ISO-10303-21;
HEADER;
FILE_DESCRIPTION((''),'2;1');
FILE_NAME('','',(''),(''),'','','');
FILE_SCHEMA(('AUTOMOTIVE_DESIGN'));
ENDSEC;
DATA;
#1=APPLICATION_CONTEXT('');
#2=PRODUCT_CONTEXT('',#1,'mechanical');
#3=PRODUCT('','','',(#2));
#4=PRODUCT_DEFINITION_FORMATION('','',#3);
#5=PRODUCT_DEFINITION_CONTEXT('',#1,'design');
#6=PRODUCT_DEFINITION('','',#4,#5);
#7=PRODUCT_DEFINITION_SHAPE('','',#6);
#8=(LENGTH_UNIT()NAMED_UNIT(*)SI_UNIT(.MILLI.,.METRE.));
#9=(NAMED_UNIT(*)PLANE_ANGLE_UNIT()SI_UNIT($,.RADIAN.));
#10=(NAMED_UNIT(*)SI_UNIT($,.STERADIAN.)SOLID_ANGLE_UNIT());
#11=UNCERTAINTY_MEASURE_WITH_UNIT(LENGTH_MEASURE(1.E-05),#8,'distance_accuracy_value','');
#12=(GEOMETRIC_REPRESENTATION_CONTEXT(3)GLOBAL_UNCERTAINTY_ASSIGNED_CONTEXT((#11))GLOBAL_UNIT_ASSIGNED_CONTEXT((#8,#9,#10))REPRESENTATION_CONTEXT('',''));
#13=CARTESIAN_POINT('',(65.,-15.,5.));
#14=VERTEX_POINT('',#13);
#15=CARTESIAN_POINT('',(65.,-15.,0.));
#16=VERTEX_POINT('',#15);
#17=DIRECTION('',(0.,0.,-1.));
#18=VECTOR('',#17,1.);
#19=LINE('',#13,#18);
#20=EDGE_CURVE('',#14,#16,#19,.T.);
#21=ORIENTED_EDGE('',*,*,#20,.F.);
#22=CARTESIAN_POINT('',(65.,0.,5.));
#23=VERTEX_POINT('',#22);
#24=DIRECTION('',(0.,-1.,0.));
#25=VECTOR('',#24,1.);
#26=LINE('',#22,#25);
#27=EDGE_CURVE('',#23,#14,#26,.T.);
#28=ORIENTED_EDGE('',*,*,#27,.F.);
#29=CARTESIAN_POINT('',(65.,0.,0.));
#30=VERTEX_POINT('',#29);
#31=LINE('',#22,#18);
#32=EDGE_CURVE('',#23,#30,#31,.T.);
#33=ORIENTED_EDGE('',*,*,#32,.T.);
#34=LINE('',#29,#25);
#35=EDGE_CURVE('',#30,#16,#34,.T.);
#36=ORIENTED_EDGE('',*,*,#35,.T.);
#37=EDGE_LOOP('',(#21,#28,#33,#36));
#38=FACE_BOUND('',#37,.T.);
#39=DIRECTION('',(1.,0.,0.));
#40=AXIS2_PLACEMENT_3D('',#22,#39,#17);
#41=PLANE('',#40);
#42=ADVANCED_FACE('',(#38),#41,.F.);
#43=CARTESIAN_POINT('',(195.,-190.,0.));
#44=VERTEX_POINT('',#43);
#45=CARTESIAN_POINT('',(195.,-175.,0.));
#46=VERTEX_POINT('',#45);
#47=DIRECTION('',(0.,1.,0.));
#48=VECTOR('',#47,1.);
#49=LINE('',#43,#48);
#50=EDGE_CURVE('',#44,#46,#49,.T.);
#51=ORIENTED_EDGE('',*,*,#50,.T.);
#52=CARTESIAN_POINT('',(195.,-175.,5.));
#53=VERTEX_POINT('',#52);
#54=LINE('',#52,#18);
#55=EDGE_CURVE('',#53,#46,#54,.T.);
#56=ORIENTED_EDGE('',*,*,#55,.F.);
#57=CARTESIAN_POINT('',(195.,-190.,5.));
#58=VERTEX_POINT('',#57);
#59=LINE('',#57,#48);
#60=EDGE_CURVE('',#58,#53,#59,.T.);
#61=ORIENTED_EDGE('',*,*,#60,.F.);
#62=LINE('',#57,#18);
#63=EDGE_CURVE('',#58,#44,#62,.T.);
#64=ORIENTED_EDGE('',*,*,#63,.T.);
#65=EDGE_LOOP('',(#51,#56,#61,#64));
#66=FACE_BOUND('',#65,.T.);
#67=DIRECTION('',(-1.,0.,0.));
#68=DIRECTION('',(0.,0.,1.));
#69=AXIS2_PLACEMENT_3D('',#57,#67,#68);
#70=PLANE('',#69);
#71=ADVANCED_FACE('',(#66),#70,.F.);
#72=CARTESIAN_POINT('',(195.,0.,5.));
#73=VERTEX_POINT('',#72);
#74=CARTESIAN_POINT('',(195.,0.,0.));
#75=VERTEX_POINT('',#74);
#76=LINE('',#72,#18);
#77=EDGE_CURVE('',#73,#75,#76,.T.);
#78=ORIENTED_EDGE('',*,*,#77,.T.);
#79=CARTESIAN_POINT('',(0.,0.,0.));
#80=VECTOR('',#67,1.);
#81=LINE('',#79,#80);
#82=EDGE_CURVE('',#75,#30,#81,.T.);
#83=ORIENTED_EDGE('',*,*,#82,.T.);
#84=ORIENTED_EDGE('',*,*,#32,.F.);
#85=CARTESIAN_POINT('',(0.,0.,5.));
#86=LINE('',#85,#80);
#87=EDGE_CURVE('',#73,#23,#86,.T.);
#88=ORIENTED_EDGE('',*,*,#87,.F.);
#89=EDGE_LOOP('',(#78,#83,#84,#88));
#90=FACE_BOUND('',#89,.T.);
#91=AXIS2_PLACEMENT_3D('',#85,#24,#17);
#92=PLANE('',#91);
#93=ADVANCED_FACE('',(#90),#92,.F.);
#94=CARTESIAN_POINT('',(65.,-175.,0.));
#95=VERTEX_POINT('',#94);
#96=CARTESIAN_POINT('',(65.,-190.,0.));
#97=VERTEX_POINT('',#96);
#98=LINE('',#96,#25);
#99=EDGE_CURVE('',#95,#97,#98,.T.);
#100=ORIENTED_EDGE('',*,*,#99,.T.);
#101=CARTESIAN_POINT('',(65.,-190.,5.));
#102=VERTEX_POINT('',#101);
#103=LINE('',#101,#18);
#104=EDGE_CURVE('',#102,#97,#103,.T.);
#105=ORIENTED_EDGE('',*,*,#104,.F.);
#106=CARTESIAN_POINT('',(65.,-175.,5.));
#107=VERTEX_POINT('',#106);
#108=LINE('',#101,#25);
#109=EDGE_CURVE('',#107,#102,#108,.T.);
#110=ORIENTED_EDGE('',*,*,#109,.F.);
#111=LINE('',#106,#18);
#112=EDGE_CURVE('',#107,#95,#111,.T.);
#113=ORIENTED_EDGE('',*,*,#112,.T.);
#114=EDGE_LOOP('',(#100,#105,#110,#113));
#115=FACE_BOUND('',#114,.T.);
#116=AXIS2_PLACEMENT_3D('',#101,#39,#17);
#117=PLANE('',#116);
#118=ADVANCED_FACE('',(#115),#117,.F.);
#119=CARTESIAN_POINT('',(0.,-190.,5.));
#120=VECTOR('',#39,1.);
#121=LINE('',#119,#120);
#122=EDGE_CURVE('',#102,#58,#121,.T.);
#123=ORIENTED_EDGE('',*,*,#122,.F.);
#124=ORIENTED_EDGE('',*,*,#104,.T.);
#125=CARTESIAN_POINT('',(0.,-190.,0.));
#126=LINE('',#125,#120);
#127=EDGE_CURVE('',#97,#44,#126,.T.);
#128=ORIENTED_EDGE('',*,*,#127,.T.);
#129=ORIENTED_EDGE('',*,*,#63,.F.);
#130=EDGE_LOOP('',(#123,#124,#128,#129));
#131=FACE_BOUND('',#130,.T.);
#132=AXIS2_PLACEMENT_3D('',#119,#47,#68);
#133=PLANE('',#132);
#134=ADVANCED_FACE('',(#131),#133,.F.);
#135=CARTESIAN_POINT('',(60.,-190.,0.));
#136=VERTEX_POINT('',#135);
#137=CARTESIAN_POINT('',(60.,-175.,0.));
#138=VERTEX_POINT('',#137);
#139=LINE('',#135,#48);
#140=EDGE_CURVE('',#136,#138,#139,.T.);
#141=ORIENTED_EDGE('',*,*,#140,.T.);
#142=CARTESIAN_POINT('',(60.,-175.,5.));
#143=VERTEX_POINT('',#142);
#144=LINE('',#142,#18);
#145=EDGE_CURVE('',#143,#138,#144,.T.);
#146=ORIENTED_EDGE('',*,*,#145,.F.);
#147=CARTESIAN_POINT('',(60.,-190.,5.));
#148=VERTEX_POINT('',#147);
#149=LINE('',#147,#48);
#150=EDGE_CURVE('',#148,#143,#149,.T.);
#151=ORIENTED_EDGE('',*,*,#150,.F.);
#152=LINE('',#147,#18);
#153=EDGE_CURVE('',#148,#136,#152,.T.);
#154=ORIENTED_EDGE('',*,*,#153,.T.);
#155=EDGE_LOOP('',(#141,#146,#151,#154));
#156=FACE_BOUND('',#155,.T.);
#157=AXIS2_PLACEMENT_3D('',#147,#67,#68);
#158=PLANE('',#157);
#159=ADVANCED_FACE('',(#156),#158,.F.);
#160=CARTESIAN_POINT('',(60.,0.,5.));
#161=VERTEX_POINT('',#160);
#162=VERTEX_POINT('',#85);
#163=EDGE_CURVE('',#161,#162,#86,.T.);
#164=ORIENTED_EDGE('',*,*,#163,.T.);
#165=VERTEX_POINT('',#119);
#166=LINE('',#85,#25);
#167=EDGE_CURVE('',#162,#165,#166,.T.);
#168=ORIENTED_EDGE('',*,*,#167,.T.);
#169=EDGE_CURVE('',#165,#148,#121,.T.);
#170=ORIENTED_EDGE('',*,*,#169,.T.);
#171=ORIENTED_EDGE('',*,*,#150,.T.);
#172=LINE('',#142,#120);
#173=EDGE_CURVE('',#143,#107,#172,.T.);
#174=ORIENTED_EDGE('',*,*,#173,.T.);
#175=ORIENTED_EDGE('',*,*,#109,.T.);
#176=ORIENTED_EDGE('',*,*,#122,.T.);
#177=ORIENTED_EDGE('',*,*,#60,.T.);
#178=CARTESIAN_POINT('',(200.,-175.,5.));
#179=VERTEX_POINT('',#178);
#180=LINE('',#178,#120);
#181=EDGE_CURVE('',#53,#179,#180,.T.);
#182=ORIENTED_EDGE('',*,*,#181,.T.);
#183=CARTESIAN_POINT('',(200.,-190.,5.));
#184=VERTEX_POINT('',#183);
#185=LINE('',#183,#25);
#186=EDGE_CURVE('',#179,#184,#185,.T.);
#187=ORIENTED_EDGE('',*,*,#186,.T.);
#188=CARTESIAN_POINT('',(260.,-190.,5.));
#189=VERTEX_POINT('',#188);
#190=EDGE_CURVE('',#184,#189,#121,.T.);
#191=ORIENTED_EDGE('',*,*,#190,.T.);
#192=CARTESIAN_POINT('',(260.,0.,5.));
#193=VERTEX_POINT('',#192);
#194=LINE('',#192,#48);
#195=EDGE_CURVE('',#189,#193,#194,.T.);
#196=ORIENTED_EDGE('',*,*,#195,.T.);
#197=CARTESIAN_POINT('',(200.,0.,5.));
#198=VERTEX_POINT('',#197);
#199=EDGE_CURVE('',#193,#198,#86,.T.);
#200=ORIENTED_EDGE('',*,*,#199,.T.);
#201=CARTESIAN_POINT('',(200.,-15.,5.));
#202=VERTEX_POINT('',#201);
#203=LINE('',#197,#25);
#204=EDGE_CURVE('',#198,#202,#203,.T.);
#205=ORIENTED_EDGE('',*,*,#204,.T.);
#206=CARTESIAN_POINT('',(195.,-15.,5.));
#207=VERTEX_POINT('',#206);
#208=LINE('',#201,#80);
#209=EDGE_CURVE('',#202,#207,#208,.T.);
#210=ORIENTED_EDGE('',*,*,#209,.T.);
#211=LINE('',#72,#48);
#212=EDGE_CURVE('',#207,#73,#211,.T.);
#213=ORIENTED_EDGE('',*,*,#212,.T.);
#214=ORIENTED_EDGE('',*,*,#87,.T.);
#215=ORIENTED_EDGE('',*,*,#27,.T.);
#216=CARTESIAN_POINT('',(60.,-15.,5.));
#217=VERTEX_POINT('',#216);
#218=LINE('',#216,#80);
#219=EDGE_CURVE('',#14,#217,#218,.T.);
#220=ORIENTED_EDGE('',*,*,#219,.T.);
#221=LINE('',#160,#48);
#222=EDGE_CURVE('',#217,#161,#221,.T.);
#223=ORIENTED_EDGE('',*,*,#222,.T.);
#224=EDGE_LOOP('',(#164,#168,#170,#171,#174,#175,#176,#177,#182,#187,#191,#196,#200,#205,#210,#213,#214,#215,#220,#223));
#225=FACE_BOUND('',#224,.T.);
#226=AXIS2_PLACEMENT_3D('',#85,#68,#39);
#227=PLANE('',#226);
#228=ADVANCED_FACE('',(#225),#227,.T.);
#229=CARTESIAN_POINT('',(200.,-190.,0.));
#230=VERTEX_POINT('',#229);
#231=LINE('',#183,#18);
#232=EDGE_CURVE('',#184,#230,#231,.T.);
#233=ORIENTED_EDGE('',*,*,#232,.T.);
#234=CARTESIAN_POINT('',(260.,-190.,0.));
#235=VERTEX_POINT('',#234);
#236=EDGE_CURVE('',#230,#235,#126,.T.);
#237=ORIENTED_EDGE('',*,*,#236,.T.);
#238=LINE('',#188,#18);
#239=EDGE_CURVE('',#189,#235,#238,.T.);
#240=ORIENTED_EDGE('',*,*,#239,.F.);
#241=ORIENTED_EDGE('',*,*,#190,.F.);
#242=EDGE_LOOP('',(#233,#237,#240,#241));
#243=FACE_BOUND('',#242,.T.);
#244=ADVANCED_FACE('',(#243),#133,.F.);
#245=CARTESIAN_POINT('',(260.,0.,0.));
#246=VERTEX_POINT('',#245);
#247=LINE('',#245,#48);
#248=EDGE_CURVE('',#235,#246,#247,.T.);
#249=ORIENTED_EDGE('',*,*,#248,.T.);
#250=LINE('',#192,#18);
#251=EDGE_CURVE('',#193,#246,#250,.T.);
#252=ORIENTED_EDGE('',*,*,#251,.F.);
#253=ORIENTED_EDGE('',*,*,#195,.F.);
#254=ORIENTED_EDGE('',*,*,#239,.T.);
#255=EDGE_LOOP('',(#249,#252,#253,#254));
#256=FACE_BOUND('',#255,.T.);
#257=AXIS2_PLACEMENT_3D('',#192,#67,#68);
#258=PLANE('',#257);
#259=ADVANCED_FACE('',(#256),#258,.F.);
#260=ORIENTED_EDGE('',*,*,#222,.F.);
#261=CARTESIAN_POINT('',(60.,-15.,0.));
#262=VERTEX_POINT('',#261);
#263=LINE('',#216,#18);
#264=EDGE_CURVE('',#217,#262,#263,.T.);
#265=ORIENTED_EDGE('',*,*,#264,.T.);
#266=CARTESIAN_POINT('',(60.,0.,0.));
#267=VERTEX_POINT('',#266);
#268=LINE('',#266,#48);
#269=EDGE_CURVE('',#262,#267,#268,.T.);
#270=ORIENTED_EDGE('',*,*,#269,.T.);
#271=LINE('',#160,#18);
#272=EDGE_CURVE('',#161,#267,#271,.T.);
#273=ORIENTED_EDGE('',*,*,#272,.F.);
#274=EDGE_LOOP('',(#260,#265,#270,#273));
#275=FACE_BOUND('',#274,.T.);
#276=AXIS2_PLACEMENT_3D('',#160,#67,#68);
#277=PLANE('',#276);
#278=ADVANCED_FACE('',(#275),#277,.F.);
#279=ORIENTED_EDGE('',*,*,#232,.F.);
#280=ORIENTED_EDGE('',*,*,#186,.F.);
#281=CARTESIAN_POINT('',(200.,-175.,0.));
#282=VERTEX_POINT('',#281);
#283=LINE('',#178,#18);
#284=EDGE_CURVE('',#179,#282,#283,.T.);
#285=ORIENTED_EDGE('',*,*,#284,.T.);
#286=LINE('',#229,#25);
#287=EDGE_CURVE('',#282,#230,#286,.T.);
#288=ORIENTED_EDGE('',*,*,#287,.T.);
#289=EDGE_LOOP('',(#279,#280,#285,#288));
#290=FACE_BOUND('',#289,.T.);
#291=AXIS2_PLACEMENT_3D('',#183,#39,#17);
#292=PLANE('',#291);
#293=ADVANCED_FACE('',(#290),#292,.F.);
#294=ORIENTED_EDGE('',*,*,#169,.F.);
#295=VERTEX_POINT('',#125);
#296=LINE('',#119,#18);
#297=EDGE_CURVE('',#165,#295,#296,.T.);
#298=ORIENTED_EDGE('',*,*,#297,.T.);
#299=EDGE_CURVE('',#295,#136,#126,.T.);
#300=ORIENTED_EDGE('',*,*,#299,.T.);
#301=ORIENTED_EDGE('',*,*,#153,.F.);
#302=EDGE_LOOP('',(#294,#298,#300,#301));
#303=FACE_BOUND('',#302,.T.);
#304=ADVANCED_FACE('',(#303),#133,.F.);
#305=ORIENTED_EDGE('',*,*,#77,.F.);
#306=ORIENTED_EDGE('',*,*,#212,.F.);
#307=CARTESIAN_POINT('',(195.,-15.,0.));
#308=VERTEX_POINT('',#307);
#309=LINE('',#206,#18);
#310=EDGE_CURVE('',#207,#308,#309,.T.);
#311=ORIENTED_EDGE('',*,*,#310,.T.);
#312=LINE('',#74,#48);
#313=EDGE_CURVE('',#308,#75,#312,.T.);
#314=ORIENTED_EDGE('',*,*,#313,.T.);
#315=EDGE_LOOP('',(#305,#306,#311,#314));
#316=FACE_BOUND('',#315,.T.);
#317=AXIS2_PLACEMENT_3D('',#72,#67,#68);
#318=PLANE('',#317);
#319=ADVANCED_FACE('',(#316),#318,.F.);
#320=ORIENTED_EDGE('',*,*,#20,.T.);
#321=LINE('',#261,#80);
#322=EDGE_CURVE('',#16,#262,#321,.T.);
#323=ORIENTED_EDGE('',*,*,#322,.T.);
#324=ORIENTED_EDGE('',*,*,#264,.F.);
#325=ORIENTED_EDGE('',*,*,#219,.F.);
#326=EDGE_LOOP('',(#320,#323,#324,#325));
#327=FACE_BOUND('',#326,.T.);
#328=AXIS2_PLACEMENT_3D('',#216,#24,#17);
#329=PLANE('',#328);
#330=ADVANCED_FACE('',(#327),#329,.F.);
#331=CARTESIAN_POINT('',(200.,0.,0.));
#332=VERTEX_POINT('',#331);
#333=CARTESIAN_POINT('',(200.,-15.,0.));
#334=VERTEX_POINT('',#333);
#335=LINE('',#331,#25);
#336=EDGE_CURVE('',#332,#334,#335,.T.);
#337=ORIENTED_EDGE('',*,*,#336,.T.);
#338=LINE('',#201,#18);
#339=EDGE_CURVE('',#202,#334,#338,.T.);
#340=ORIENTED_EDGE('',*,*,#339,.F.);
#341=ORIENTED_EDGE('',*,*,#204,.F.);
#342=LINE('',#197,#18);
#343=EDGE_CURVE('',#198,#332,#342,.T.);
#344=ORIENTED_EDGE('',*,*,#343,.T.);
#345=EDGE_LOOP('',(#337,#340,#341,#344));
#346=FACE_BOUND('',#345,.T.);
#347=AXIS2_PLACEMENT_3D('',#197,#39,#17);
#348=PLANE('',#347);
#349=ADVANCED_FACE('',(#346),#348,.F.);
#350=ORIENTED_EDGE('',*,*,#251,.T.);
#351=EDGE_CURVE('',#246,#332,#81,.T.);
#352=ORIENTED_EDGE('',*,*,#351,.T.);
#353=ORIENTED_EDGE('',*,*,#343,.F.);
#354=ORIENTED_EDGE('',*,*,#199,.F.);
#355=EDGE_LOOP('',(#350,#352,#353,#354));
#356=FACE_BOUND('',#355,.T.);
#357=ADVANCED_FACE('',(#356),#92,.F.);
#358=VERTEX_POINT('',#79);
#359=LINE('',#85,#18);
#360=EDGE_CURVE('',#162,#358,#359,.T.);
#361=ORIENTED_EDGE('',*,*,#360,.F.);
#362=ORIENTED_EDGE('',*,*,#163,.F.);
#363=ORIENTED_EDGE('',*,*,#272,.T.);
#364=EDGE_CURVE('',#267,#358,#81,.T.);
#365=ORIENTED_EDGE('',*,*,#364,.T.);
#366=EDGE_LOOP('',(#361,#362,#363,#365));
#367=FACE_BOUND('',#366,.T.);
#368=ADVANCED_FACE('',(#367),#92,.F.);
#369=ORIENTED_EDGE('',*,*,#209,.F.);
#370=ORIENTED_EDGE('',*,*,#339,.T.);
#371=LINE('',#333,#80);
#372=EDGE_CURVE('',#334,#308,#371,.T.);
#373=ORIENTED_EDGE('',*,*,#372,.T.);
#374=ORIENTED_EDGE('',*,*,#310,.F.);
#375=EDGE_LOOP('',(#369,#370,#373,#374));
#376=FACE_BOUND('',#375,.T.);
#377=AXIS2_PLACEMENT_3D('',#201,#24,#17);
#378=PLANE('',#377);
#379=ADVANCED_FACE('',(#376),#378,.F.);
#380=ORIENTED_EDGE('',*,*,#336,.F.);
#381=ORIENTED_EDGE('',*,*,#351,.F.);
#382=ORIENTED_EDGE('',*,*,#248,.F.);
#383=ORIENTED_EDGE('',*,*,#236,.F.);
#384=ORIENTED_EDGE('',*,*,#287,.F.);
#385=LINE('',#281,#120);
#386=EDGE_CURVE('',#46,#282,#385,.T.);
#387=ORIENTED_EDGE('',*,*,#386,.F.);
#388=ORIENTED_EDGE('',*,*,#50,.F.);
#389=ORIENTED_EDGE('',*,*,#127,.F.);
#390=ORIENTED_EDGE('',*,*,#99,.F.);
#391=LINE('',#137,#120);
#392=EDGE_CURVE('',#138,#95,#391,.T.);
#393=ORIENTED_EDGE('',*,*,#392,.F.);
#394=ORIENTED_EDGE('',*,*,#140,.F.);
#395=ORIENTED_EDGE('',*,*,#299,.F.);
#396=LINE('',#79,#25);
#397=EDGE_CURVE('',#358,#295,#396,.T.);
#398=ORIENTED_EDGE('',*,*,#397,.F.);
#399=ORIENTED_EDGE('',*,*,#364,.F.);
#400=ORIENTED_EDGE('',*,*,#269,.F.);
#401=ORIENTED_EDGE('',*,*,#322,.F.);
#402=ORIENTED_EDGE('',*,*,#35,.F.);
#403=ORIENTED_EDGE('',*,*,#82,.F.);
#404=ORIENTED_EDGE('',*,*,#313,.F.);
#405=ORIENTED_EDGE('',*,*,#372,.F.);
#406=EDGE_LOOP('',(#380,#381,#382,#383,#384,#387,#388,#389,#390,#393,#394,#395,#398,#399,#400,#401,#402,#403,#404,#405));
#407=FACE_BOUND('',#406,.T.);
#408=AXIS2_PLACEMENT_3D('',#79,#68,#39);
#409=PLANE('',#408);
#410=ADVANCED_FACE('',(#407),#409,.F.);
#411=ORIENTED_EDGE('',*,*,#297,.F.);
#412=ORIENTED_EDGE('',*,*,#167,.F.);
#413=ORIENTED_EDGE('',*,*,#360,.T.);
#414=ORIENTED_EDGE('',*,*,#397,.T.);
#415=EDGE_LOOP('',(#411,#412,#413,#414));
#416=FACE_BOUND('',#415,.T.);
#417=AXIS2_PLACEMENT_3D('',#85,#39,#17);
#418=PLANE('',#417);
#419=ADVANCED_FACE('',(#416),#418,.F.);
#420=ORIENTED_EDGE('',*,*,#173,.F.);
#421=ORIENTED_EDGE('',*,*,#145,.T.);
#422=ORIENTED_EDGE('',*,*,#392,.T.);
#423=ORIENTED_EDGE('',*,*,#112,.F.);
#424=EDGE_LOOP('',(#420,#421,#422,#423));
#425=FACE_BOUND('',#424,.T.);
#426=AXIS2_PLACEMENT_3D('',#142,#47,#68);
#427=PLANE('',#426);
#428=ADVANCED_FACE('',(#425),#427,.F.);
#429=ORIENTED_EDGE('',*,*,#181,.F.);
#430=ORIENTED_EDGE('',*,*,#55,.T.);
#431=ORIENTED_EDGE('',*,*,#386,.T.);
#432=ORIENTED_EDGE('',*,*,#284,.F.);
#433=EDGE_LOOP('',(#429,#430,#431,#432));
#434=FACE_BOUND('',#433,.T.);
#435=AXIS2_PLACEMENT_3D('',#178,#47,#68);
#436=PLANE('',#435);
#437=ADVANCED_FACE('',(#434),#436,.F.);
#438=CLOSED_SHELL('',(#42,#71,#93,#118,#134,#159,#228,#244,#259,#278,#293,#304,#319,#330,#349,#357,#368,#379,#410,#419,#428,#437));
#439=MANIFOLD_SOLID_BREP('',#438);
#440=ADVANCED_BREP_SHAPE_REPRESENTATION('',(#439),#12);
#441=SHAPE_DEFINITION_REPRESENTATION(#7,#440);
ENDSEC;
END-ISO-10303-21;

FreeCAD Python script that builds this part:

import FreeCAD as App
import Part
import Sketcher
from FreeCAD import Vector


def add_polygon(sketch, points):
    """Adds a closed chain of lines whose ends are joined by coincident constraints."""
    first, n = sketch.GeometryCount, len(points)
    for a, b in zip(points, points[1:] + points[:1]):
        sketch.addGeometry(Part.LineSegment(App.Vector(*a, 0), App.Vector(*b, 0)), False)
    for i in range(n):
        sketch.addConstraint(Sketcher.Constraint("Coincident", first + i, 2, first + (i + 1) % n, 1))

doc = App.newDocument("Part")
body = doc.addObject("PartDesign::Body", "Body")

# Sketch on XY plane
sketch1 = doc.addObject("Sketcher::SketchObject", "Sketch")
body.addObject(sketch1)
sketch1.AttachmentSupport = (doc.XY_Plane, [""])
sketch1.MapMode = "FlatFace"
add_polygon(sketch1, [(0, 0), (0, -190), (260, -190), (260, 0)])  # lines 0-3
sketch1.addConstraint([
    Sketcher.Constraint("Vertical", 0),
    Sketcher.Constraint("Horizontal", 1),
    Sketcher.Constraint("Vertical", 2),
    Sketcher.Constraint("Horizontal", 3),
    Sketcher.Constraint("Coincident", 3, 2, -1, 1),
    Sketcher.Constraint("DistanceX", 1, 1, 1, 2, 260.0),
    Sketcher.Constraint("DistanceY", 0, 2, 0, 1, 190.0),
])
pad1 = doc.addObject("PartDesign::Pad", "Pad")
body.addObject(pad1)
pad1.Profile = sketch1
pad1.Length = 5

# Sketch on XY plane
sketch2 = doc.addObject("Sketcher::SketchObject", "Sketch001")
body.addObject(sketch2)
sketch2.AttachmentSupport = (doc.XY_Plane, [""])
sketch2.MapMode = "FlatFace"
add_polygon(sketch2, [(200, 0), (200, -15), (195, -15), (195, 0)])  # lines 0-3
add_polygon(sketch2, [(200, -175), (200, -190), (195, -190), (195, -175)])  # lines 4-7
add_polygon(sketch2, [(65, 0), (65, -15), (60, -15), (60, 0)])  # lines 8-11
add_polygon(sketch2, [(65, -175), (65, -190), (60, -190), (60, -175)])  # lines 12-15
sketch2.addConstraint([
    Sketcher.Constraint("Vertical", 0),
    Sketcher.Constraint("Horizontal", 1),
    Sketcher.Constraint("Vertical", 2),
    Sketcher.Constraint("Horizontal", 3),
    Sketcher.Constraint("Vertical", 4),
    Sketcher.Constraint("Horizontal", 5),
    Sketcher.Constraint("Vertical", 6),
    Sketcher.Constraint("Horizontal", 7),
    Sketcher.Constraint("Vertical", 8),
    Sketcher.Constraint("Horizontal", 9),
    Sketcher.Constraint("Vertical", 10),
    Sketcher.Constraint("Horizontal", 11),
    Sketcher.Constraint("Vertical", 12),
    Sketcher.Constraint("Horizontal", 13),
    Sketcher.Constraint("Vertical", 14),
    Sketcher.Constraint("Horizontal", 15),
    Sketcher.Constraint("PointOnObject", 2, 2, -1),
    Sketcher.Constraint("PointOnObject", 10, 2, -1),
    Sketcher.Constraint("Horizontal", 1, 2, 8, 2),
    Sketcher.Constraint("Horizontal", 5, 2, 12, 2),
    Sketcher.Constraint("Horizontal", 7, 2, 14, 2),
    Sketcher.Constraint("Vertical", 3, 2, 4, 2),
    Sketcher.Constraint("Vertical", 2, 2, 5, 2),
    Sketcher.Constraint("Vertical", 11, 2, 12, 2),
    Sketcher.Constraint("Vertical", 10, 2, 13, 2),
    Sketcher.Constraint("Equal", 7, 9),
    Sketcher.Constraint("Equal", 2, 4),
    Sketcher.Constraint("DistanceX", 1, 2, 1, 1, 5.0),
    Sketcher.Constraint("DistanceY", 0, 2, 0, 1, 15.0),
    Sketcher.Constraint("DistanceX", -1, 1, 0, 2, 200.0),
    Sketcher.Constraint("DistanceY", 4, 2, -1, 1, 190.0),
    Sketcher.Constraint("DistanceX", -1, 1, 8, 2, 65.0),
])
pocket1 = doc.addObject("PartDesign::Pocket", "Pocket")
body.addObject(pocket1)
pocket1.Profile = sketch2
pocket1.Length = 5
pocket1.Reversed = True

doc.recompute()
